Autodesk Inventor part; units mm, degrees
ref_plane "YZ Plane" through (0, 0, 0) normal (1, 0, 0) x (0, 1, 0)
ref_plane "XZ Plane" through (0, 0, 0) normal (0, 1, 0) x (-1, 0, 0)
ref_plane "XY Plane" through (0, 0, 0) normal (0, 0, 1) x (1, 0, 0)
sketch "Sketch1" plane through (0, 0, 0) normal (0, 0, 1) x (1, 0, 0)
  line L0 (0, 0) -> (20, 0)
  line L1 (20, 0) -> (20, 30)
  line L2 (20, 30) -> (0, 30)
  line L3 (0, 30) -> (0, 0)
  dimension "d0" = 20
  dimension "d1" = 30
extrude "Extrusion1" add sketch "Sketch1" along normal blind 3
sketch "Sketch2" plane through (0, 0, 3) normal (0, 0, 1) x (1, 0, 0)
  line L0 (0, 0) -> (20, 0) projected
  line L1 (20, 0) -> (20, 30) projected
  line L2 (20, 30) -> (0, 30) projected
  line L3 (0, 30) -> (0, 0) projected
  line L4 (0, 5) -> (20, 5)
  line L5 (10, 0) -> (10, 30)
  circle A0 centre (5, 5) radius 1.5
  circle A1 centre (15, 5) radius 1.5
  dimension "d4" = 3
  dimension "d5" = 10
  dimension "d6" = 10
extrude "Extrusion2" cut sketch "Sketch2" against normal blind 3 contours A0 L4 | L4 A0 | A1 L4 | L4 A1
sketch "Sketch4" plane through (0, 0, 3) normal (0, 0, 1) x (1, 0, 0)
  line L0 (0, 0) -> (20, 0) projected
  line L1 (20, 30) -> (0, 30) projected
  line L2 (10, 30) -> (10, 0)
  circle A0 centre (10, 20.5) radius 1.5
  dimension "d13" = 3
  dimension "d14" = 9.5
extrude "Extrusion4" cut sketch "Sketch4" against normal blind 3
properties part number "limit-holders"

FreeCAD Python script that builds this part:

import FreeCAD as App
import Part
import Sketcher

doc = App.newDocument("Part")
body = doc.addObject("PartDesign::Body", "Body")

sketch1 = body.newObject("Sketcher::SketchObject", "Sketch")
sketch1.AttachmentSupport = (doc.getObject("XY_Plane"), [""])
sketch1.MapMode = "FlatFace"
sketch1.addGeometry([
    Part.LineSegment(App.Vector(0, 30, 0), App.Vector(0, 0, 0)),
    Part.LineSegment(App.Vector(0, 0, 0), App.Vector(20, 0, 0)),
    Part.LineSegment(App.Vector(20, 0, 0), App.Vector(20, 30, 0)),
    Part.LineSegment(App.Vector(20, 30, 0), App.Vector(0, 30, 0)),
], False)
sketch1.addConstraint([
    Sketcher.Constraint("Coincident", 0, 2, 1, 1),
    Sketcher.Constraint("Coincident", 1, 2, 2, 1),
    Sketcher.Constraint("Coincident", 2, 2, 3, 1),
    Sketcher.Constraint("Coincident", 3, 2, 0, 1),
    Sketcher.Constraint("Vertical", 0),
    Sketcher.Constraint("Horizontal", 1),
    Sketcher.Constraint("Vertical", 2),
    Sketcher.Constraint("Horizontal", 3),
    Sketcher.Constraint("Coincident", 0, 2, -1, 1),
    Sketcher.Constraint("DistanceX", 1, 1, 1, 2, 20.0),
    Sketcher.Constraint("DistanceY", 0, 2, 0, 1, 30.0),
])
pad1 = body.newObject("PartDesign::Pad", "Pad")
pad1.Profile = sketch1
pad1.Length = 3

sketch2 = body.newObject("Sketcher::SketchObject", "Sketch001")
sketch2.AttachmentSupport = (doc.getObject("XY_Plane"), [""])
sketch2.MapMode = "FlatFace"
sketch2.AttachmentOffset = App.Placement(App.Vector(0, 0, 3), App.Rotation())
sketch2.addGeometry([
    Part.Circle(App.Vector(5, 5, 0), App.Vector(0, 0, 1), 1.5),
    Part.Circle(App.Vector(15, 5, 0), App.Vector(0, 0, 1), 1.5),
], False)
sketch2.addConstraint([
    Sketcher.Constraint("Equal", 0, 1),
    Sketcher.Constraint("Horizontal", 0, 3, 1, 3),
    Sketcher.Constraint("Diameter", 0, 3.0),
    Sketcher.Constraint("DistanceX", 0, 3, 1, 3, 10.0),
    Sketcher.Constraint("DistanceX", -1, 1, 0, 3, 5.0),
    Sketcher.Constraint("DistanceY", -1, 1, 0, 3, 5.0),
])
pocket1 = body.newObject("PartDesign::Pocket", "Pocket")
pocket1.Profile = sketch2
pocket1.Length = 3

sketch3 = body.newObject("Sketcher::SketchObject", "Sketch002")
sketch3.AttachmentSupport = (doc.getObject("XY_Plane"), [""])
sketch3.MapMode = "FlatFace"
sketch3.AttachmentOffset = App.Placement(App.Vector(0, 0, 3), App.Rotation())
sketch3.addGeometry(Part.Circle(App.Vector(10, 20.5, 0), App.Vector(0, 0, 1), 1.5), False)
sketch3.addConstraint([
    Sketcher.Constraint("Diameter", 0, 3.0),
    Sketcher.Constraint("DistanceX", -1, 1, 0, 3, 10.0),
    Sketcher.Constraint("DistanceY", -1, 1, 0, 3, 20.5),
])
pocket2 = body.newObject("PartDesign::Pocket", "Pocket001")
pocket2.Profile = sketch3
pocket2.Length = 3

doc.recompute()
